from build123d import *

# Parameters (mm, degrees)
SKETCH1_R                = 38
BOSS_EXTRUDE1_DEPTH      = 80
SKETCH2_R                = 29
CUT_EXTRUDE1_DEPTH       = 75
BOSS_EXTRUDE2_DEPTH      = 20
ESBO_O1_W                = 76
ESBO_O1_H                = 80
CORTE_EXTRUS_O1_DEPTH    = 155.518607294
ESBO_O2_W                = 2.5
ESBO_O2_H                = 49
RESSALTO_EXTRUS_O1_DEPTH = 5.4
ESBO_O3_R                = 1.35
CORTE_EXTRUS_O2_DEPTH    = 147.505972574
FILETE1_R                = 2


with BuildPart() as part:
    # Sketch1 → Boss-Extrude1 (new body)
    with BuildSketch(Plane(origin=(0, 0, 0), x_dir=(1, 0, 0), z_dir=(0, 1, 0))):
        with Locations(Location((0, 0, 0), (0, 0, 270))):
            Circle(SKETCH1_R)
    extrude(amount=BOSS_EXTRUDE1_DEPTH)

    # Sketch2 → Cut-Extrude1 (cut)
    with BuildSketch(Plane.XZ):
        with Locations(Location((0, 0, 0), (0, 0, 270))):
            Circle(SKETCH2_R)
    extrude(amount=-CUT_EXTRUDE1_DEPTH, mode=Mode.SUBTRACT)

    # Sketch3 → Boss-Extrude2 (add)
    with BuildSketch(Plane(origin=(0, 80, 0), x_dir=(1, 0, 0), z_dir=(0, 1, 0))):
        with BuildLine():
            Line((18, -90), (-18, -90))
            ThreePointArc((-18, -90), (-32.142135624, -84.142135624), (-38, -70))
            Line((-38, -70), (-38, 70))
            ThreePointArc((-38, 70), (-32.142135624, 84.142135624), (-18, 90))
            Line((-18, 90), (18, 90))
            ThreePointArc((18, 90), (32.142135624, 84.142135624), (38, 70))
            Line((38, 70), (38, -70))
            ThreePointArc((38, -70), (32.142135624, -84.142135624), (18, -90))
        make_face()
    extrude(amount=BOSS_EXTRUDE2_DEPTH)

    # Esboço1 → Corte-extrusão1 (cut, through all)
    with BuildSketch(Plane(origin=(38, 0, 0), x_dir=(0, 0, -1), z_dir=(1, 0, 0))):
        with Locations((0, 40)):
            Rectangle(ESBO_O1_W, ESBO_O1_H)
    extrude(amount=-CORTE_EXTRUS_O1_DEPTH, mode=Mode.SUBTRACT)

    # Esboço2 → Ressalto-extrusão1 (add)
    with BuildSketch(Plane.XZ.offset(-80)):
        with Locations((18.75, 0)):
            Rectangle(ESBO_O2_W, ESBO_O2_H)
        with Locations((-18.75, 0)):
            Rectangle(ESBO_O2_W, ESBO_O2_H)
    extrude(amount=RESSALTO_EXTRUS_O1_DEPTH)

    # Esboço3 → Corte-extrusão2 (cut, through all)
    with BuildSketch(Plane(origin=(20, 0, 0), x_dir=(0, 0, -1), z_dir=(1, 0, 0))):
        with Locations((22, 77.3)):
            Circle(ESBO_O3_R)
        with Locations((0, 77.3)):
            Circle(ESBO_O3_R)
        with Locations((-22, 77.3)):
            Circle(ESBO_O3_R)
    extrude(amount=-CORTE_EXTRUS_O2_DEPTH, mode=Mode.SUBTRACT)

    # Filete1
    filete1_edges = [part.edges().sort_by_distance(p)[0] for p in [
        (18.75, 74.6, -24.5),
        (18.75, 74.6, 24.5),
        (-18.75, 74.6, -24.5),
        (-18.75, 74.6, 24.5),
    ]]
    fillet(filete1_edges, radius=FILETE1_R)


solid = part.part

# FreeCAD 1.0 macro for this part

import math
import FreeCAD as App
import Part
import Sketcher
from FreeCAD import Vector


def edges_at(feature, points):
    """Names of the edges that pass closest to the given points."""
    edges = feature.Shape.Edges
    near = lambda p: min(range(len(edges)), key=lambda i: edges[i].distToShape(Part.Vertex(*p))[0])
    return sorted({f"Edge{near(p) + 1}" for p in points})


def add_polygon(sketch, points):
    """Adds a closed chain of lines whose ends are joined by coincident constraints."""
    first, n = sketch.GeometryCount, len(points)
    for a, b in zip(points, points[1:] + points[:1]):
        sketch.addGeometry(Part.LineSegment(App.Vector(*a, 0), App.Vector(*b, 0)), False)
    for i in range(n):
        sketch.addConstraint(Sketcher.Constraint("Coincident", first + i, 2, first + (i + 1) % n, 1))

doc = App.newDocument("Part")
body = doc.addObject("PartDesign::Body", "Body")

# Sketch on XZ plane
sketch1 = body.newObject("Sketcher::SketchObject", "Sketch")
sketch1.AttachmentSupport = (doc.getObject("XZ_Plane"), [""])
sketch1.MapMode = "FlatFace"
sketch1.addGeometry(Part.Circle(Vector(0, 0, 0), Vector(0, 0, 1), 38), False)
sketch1.addConstraint([
    Sketcher.Constraint("Coincident", 0, 3, -1, 1),
    Sketcher.Constraint("Diameter", 0, 76.0),
])
pad1 = body.newObject("PartDesign::Pad", "Pad")
pad1.Profile = sketch1
pad1.Length = 80
pad1.Reversed = True

# Sketch on XZ plane
sketch2 = body.newObject("Sketcher::SketchObject", "Sketch001")
sketch2.AttachmentSupport = (doc.getObject("XZ_Plane"), [""])
sketch2.MapMode = "FlatFace"
sketch2.addGeometry(Part.Circle(Vector(0, 0, 0), Vector(0, 0, 1), 29), False)
sketch2.addConstraint([
    Sketcher.Constraint("Coincident", 0, 3, -1, 1),
    Sketcher.Constraint("Diameter", 0, 58.0),
])
pocket1 = body.newObject("PartDesign::Pocket", "Pocket")
pocket1.Profile = sketch2
pocket1.Length = 75

# Sketch on XZ plane
sketch3 = body.newObject("Sketcher::SketchObject", "Sketch002")
sketch3.AttachmentSupport = (doc.getObject("XZ_Plane"), [""])
sketch3.MapMode = "FlatFace"
sketch3.AttachmentOffset = App.Placement(Vector(0, 0, -80), App.Rotation())
sketch3.addGeometry([
    Part.LineSegment(Vector(-18, 90, 0), Vector(18, 90, 0)),  # 0
    Part.ArcOfCircle(Part.Circle(Vector(18, 70, 0), Vector(0, 0, 1), 20), math.radians(0), math.radians(90)),  # 1
    Part.LineSegment(Vector(38, 70, 0), Vector(38, -70, 0)),  # 2
    Part.ArcOfCircle(Part.Circle(Vector(18, -70, 0), Vector(0, 0, 1), 20), math.radians(-90), math.radians(0)),  # 3
    Part.LineSegment(Vector(18, -90, 0), Vector(-18, -90, 0)),  # 4
    Part.ArcOfCircle(Part.Circle(Vector(-18, -70, 0), Vector(0, 0, 1), 20), math.radians(180), math.radians(270)),  # 5
    Part.LineSegment(Vector(-38, -70, 0), Vector(-38, 70, 0)),  # 6
    Part.ArcOfCircle(Part.Circle(Vector(-18, 70, 0), Vector(0, 0, 1), 20), math.radians(90), math.radians(180)),  # 7
], False)
sketch3.addConstraint([
    Sketcher.Constraint("Tangent", 0, 2, 1, 2),
    Sketcher.Constraint("Tangent", 1, 1, 2, 1),
    Sketcher.Constraint("Tangent", 2, 2, 3, 2),
    Sketcher.Constraint("Tangent", 3, 1, 4, 1),
    Sketcher.Constraint("Tangent", 4, 2, 5, 2),
    Sketcher.Constraint("Tangent", 5, 1, 6, 1),
    Sketcher.Constraint("Tangent", 6, 2, 7, 2),
    Sketcher.Constraint("Tangent", 7, 1, 0, 1),
    Sketcher.Constraint("Horizontal", 0),
    Sketcher.Constraint("Vertical", 2),
    Sketcher.Constraint("Horizontal", 4),
    Sketcher.Constraint("Vertical", 6),
    Sketcher.Constraint("Equal", 1, 3),
    Sketcher.Constraint("Equal", 3, 5),
    Sketcher.Constraint("Equal", 5, 7),
    Sketcher.Constraint("Symmetric", 1, 3, 5, 3, -1, 1),
    Sketcher.Constraint("Radius", 1, 20.0),
    Sketcher.Constraint("DistanceX", 0, 1, 0, 2, 36.0),
    Sketcher.Constraint("DistanceY", 2, 2, 2, 1, 140.0),
])
pad2 = body.newObject("PartDesign::Pad", "Pad001")
pad2.Profile = sketch3
pad2.Length = 20
pad2.Reversed = True

# Sketch on YZ plane
sketch4 = body.newObject("Sketcher::SketchObject", "Sketch003")
sketch4.AttachmentSupport = (doc.getObject("YZ_Plane"), [""])
sketch4.MapMode = "FlatFace"
sketch4.AttachmentOffset = App.Placement(Vector(0, 0, 38), App.Rotation())
add_polygon(sketch4, [(80, 38), (0, 38), (0, -38), (80, -38)])  # lines 0-3
sketch4.addConstraint([
    Sketcher.Constraint("Horizontal", 0),
    Sketcher.Constraint("Vertical", 1),
    Sketcher.Constraint("Horizontal", 2),
    Sketcher.Constraint("Vertical", 3),
    Sketcher.Constraint("Symmetric", 0, 2, 1, 2, -1, 1),
    Sketcher.Constraint("DistanceX", 0, 2, 0, 1, 80.0),
    Sketcher.Constraint("DistanceY", 1, 2, 1, 1, 76.0),
])
pocket2 = body.newObject("PartDesign::Pocket", "Pocket001")
pocket2.Profile = sketch4
pocket2.Type = "ThroughAll"

# Sketch on XZ plane
sketch5 = body.newObject("Sketcher::SketchObject", "Sketch004")
sketch5.AttachmentSupport = (doc.getObject("XZ_Plane"), [""])
sketch5.MapMode = "FlatFace"
sketch5.AttachmentOffset = App.Placement(Vector(0, 0, -80), App.Rotation())
add_polygon(sketch5, [(17.5, 24.5), (17.5, -24.5), (20, -24.5), (20, 24.5)])  # lines 0-3
add_polygon(sketch5, [(-20, 24.5), (-20, -24.5), (-17.5, -24.5), (-17.5, 24.5)])  # lines 4-7
sketch5.addConstraint([
    Sketcher.Constraint("Vertical", 0),
    Sketcher.Constraint("Horizontal", 1),
    Sketcher.Constraint("Vertical", 2),
    Sketcher.Constraint("Horizontal", 3),
    Sketcher.Constraint("Vertical", 4),
    Sketcher.Constraint("Horizontal", 5),
    Sketcher.Constraint("Vertical", 6),
    Sketcher.Constraint("Horizontal", 7),
    Sketcher.Constraint("Symmetric", 2, 2, 4, 2, -1, 1),
    Sketcher.Constraint("Symmetric", 0, 2, 6, 2, -1, 1),
    Sketcher.Constraint("Horizontal", 1, 2, 4, 2),
    Sketcher.Constraint("DistanceY", 0, 2, 0, 1, 49.0),
    Sketcher.Constraint("DistanceX", 1, 1, 1, 2, 2.5),
    Sketcher.Constraint("DistanceX", -1, 1, 1, 2, 20.0),
])
pad3 = body.newObject("PartDesign::Pad", "Pad002")
pad3.Profile = sketch5
pad3.Length = 5.4

# Sketch on YZ plane
sketch6 = body.newObject("Sketcher::SketchObject", "Sketch005")
sketch6.AttachmentSupport = (doc.getObject("YZ_Plane"), [""])
sketch6.MapMode = "FlatFace"
sketch6.AttachmentOffset = App.Placement(Vector(0, 0, 20), App.Rotation())
sketch6.addGeometry([
    Part.Circle(Vector(77.3, -22, 0), Vector(0, 0, 1), 1.4),
    Part.Circle(Vector(77.3, 0, 0), Vector(0, 0, 1), 1.4),
    Part.Circle(Vector(77.3, 22, 0), Vector(0, 0, 1), 1.4),
], False)
sketch6.addConstraint([
    Sketcher.Constraint("Equal", 0, 1),
    Sketcher.Constraint("Equal", 1, 2),
    Sketcher.Constraint("Symmetric", 0, 3, 2, 3, -1),
    Sketcher.Constraint("PointOnObject", 1, 3, -1),
    Sketcher.Constraint("Vertical", 0, 3, 1, 3),
    Sketcher.Constraint("Diameter", 0, 2.7),
    Sketcher.Constraint("DistanceY", 0, 3, -1, 1, 22.0),
    Sketcher.Constraint("DistanceX", -1, 1, 0, 3, 77.3),
])
pocket3 = body.newObject("PartDesign::Pocket", "Pocket002")
pocket3.Profile = sketch6
pocket3.Type = "ThroughAll"
doc.recompute()

fillet = body.newObject("PartDesign::Fillet", "Fillet")
fillet.Base = (pocket3, edges_at(pocket3, [
    (18.75, 74.6, -24.5),
    (18.75, 74.6, 24.5),
    (-18.75, 74.6, -24.5),
    (-18.75, 74.6, 24.5),
]))
fillet.Radius = 2

doc.recompute()
